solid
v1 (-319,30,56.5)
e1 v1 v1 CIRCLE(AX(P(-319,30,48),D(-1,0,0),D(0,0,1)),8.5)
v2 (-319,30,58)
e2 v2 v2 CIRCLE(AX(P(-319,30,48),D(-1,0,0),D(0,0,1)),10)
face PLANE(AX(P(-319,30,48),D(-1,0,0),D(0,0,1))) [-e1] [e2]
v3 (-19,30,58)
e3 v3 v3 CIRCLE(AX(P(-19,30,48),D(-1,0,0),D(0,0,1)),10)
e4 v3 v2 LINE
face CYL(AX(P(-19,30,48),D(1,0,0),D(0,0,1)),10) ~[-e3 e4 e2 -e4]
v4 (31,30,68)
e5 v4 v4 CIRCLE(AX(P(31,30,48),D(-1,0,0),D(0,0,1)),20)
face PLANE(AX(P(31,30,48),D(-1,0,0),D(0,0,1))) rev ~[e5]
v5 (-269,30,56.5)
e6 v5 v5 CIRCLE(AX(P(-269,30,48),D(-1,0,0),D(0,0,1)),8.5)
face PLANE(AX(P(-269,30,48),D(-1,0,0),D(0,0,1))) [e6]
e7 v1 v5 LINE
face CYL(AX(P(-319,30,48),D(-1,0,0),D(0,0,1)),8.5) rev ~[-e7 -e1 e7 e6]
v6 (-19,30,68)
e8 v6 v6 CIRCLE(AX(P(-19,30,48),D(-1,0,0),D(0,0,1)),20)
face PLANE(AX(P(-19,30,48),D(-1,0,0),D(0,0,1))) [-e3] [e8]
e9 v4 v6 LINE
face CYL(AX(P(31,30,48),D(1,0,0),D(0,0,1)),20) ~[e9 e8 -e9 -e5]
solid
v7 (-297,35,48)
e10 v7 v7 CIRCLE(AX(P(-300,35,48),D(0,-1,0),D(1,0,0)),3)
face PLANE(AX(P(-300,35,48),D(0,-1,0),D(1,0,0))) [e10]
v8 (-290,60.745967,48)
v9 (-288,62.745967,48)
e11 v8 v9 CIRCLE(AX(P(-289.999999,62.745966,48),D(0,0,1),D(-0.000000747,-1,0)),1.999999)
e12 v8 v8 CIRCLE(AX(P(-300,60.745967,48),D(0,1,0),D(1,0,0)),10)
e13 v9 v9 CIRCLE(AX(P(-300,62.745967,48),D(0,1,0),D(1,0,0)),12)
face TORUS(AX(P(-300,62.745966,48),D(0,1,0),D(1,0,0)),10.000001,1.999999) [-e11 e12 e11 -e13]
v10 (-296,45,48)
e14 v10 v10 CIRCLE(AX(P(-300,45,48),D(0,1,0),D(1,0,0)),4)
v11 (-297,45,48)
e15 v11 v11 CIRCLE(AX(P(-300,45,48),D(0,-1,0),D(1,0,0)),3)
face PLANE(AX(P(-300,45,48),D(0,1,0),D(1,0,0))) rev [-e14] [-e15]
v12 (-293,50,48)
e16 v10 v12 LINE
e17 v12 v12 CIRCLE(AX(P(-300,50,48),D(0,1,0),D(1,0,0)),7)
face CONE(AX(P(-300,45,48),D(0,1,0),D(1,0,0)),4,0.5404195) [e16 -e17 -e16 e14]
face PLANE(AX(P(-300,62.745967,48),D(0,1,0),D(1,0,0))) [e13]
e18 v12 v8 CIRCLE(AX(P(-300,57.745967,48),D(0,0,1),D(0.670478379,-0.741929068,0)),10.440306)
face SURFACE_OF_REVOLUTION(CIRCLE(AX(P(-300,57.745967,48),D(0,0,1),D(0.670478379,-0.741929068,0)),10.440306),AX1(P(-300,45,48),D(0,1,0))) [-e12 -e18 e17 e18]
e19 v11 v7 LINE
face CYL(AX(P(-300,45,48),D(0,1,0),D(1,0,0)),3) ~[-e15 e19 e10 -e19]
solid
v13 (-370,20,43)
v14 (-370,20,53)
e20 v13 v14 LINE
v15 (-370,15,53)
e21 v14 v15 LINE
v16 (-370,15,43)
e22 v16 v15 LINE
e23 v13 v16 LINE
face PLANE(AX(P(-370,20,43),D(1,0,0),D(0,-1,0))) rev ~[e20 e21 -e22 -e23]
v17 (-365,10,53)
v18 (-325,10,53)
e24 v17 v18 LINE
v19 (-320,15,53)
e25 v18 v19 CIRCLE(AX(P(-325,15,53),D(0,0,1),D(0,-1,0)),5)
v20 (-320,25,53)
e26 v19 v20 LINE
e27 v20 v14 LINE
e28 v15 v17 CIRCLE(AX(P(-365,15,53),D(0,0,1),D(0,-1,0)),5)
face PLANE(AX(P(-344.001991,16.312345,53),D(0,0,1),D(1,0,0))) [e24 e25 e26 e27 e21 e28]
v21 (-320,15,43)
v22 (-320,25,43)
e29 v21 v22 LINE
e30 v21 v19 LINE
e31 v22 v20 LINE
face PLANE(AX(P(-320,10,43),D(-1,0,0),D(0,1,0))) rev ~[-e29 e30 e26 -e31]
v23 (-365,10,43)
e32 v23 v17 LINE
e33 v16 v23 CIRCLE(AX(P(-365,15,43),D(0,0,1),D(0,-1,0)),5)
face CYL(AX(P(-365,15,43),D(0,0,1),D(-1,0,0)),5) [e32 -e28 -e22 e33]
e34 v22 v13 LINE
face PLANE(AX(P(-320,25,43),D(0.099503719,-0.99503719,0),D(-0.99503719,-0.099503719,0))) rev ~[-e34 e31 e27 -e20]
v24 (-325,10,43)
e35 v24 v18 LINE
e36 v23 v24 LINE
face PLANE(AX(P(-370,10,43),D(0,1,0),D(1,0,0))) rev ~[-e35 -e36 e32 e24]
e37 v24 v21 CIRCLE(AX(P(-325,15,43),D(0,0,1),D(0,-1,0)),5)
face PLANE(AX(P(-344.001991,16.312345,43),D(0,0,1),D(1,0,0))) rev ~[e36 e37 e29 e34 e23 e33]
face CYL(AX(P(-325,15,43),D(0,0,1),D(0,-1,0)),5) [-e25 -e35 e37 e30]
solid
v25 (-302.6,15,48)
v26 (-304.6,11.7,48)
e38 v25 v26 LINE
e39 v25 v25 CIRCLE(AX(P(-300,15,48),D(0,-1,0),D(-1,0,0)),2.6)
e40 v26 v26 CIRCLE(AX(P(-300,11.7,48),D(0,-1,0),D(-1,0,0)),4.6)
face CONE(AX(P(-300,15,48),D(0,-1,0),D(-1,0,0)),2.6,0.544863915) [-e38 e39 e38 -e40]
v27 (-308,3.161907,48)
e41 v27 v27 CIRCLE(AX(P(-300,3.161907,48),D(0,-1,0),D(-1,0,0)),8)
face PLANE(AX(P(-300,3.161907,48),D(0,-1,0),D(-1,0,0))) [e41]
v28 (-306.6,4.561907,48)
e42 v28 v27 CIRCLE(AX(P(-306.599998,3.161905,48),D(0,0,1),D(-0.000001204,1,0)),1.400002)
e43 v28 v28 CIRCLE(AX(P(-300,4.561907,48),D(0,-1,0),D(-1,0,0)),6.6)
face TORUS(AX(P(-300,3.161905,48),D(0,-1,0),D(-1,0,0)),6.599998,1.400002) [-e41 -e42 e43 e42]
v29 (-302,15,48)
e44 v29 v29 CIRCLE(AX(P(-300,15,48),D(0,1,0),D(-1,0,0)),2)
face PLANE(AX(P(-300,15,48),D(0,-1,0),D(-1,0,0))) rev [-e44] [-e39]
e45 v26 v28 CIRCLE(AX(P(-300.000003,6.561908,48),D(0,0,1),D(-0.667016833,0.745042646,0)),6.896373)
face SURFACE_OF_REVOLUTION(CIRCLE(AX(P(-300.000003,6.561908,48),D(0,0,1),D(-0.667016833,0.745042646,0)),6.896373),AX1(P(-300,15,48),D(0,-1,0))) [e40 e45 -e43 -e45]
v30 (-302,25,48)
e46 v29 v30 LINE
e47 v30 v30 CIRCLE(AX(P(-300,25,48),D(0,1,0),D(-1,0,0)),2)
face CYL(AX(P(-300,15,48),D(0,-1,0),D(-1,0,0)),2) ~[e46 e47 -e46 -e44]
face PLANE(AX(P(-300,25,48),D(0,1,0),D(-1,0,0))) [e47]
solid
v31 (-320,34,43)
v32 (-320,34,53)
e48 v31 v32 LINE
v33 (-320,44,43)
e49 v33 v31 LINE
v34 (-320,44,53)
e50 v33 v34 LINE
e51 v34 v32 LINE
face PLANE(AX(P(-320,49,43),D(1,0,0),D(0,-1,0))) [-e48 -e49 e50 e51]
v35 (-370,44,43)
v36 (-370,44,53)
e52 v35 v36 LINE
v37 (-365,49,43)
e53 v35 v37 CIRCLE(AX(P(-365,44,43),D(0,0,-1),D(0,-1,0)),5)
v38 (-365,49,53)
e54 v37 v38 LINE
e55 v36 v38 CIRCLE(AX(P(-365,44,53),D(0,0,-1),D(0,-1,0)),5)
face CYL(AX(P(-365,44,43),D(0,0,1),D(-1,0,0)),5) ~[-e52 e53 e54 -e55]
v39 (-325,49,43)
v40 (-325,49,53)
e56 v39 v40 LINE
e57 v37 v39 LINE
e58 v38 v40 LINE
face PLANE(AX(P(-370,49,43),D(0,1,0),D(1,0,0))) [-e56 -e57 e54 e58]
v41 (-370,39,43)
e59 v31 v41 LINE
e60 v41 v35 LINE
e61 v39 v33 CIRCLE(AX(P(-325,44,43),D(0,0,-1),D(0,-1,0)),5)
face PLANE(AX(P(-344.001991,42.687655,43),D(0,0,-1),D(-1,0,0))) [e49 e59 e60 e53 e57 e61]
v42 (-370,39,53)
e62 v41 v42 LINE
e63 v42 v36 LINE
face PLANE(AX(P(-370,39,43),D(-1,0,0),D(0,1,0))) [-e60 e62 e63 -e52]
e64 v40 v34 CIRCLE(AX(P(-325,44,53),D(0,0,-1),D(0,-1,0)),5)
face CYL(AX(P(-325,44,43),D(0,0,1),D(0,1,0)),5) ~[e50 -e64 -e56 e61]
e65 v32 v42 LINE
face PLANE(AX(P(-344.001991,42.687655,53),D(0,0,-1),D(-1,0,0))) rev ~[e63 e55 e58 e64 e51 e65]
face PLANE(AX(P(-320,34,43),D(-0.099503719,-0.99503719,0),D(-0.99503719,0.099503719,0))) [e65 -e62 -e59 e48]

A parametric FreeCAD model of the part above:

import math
import FreeCAD as App
import Part
import Sketcher

V = App.Vector


def edges_at(feature, points):
    """Names of the edges that pass closest to the given points."""
    edges = feature.Shape.Edges
    near = lambda p: min(range(len(edges)), key=lambda i: edges[i].distToShape(Part.Vertex(*p))[0])
    return sorted({f"Edge{near(p) + 1}" for p in points})

doc = App.newDocument("Part")
params = doc.addObject("Spreadsheet::Sheet", "Params")
for row, (alias, value) in enumerate([
    ("sketch1_radius", "1.999999 mm"),
    ("sketch1_width", "4 mm"),
    ("sketch1_width2", "12 mm"),
    ("revolution_angle", "360 deg"),
    ("sketch2_diameter", "6 mm"),
    ("pad1_length", "10 mm"),
    ("sketch3_radius", "1.400002 mm"),
    ("sketch3_width", "8 mm"),
    ("sketch3_width2", "2.6 mm"),
    ("sketch3_height", "2.000001 mm"),
    ("revolution2_angle", "360 deg"),
    ("sketch4_diameter", "4 mm"),
    ("pad2_length", "10 mm"),
    ("sketch5_width", "50 mm"),
    ("sketch5_height", "10 mm"),
    ("sketch5_height2", "15 mm"),
    ("pad3_length", "10 mm"),
    ("fillet_radius", "5 mm"),
    ("fillet2_radius", "5 mm"),
    ("sketch6_width", "50 mm"),
    ("sketch6_height", "10 mm"),
    ("sketch6_height2", "15 mm"),
    ("pad4_length", "10 mm"),
    ("fillet3_radius", "5 mm"),
    ("fillet4_radius", "5 mm"),
    ("sketch7_diameter", "40 mm"),
    ("pad5_length", "50 mm"),
    ("sketch8_diameter", "20 mm"),
    ("pad6_length", "300 mm"),
    ("sketch9_diameter", "17 mm"),
    ("pocket1_length", "50 mm"),
], start=1):
    params.set(f"A{row}", alias)
    params.set(f"B{row}", "=" + value)
    params.setAlias(f"B{row}", alias)

body = doc.addObject("PartDesign::Body", "Body")

sketch1 = doc.addObject("Sketcher::SketchObject", "Sketch")
body.addObject(sketch1)
sketch1.AttachmentSupport = (doc.XY_Plane, [""])
sketch1.MapMode = "FlatFace"
sketch1.AttachmentOffset = App.Placement(V(0, 0, 48), App.Rotation())
sketch1.addGeometry(Part.LineSegment(V(-300, 45, 0), V(-296, 45, 0)), False)
sketch1.addGeometry(Part.LineSegment(V(-296, 45, 0), V(-293, 50, 0)), False)
sketch1.addGeometry(Part.ArcOfCircle(Part.Circle(V(-300, 57.7, 0), V(0, 0, 1), 10.4), math.radians(-48), math.radians(17)), False)
sketch1.addGeometry(Part.ArcOfCircle(Part.Circle(V(-290, 62.7, 0), V(0, 0, 1), 2), math.radians(-90), math.radians(0)), False)
sketch1.addGeometry(Part.LineSegment(V(-288, 62.7, 0), V(-300, 62.7, 0)), False)
sketch1.addGeometry(Part.LineSegment(V(-300, 62.7, 0), V(-300, 45, 0)), False)
sketch1.addGeometry(Part.LineSegment(V(-300, 45, 0), V(-300, 62.7, 0)), True)
sketch1.addConstraint(Sketcher.Constraint("Coincident", 0, 2, 1, 1))
sketch1.addConstraint(Sketcher.Constraint("Coincident", 1, 2, 2, 1))
sketch1.addConstraint(Sketcher.Constraint("Coincident", 2, 2, 3, 1))
sketch1.addConstraint(Sketcher.Constraint("Coincident", 3, 2, 4, 1))
sketch1.addConstraint(Sketcher.Constraint("Coincident", 4, 2, 5, 1))
sketch1.addConstraint(Sketcher.Constraint("Coincident", 5, 2, 0, 1))
sketch1.addConstraint(Sketcher.Constraint("Horizontal", 0))
sketch1.addConstraint(Sketcher.Constraint("Horizontal", 4))
sketch1.addConstraint(Sketcher.Constraint("Vertical", 5))
sketch1.addConstraint(Sketcher.Constraint("Vertical", 6))
sketch1.addConstraint(Sketcher.Constraint("Coincident", 6, 1, 5, 2))
sketch1.addConstraint(Sketcher.Constraint("Horizontal", 3, 2, 6, 2))
sketch1.addConstraint(Sketcher.Constraint("Vertical", 3, 3, 2, 2))
sketch1.addConstraint(Sketcher.Constraint("Vertical", 2, 3, 4, 2))
sketch1.addConstraint(Sketcher.Constraint("Radius", 3, 1.999999))
sketch1.addConstraint(Sketcher.Constraint("DistanceX", 0, 1, 0, 2, 4.0))
sketch1.addConstraint(Sketcher.Constraint("DistanceX", 4, 2, 4, 1, 12.0))
sketch1.addConstraint(Sketcher.Constraint("DistanceX", 2, 3, -1, 1, 300.0))
sketch1.addConstraint(Sketcher.Constraint("DistanceY", -1, 1, 0, 2, 45.0))
sketch1.addConstraint(Sketcher.Constraint("DistanceX", 1, 2, -1, 1, 293.0))
sketch1.addConstraint(Sketcher.Constraint("DistanceY", -1, 1, 1, 2, 50.0))
sketch1.addConstraint(Sketcher.Constraint("DistanceY", 2, 3, 3, 3, 4.999999))
sketch1.addConstraint(Sketcher.Constraint("DistanceY", 2, 2, 3, 2, 2.0))
sketch1.setExpression("Constraints[14]", "Params.sketch1_radius")
sketch1.setExpression("Constraints[15]", "Params.sketch1_width")
sketch1.setExpression("Constraints[16]", "Params.sketch1_width2")
revolution = doc.addObject("PartDesign::Revolution", "Revolution")
body.addObject(revolution)
revolution.Profile = sketch1
revolution.ReferenceAxis = (sketch1, ["Axis0"])
revolution.setExpression("Angle", "Params.revolution_angle")

sketch2 = doc.addObject("Sketcher::SketchObject", "Sketch001")
body.addObject(sketch2)
sketch2.AttachmentSupport = (doc.XZ_Plane, [""])
sketch2.MapMode = "FlatFace"
sketch2.AttachmentOffset = App.Placement(V(0, 0, -45), App.Rotation())
sketch2.addGeometry(Part.Circle(V(-300, 48, 0), V(0, 0, 1), 3), False)
sketch2.addConstraint(Sketcher.Constraint("Diameter", 0, 6.0))
sketch2.addConstraint(Sketcher.Constraint("DistanceX", 0, 3, -1, 1, 300.0))
sketch2.addConstraint(Sketcher.Constraint("DistanceY", -1, 1, 0, 3, 48.0))
sketch2.setExpression("Constraints[0]", "Params.sketch2_diameter")
pad1 = doc.addObject("PartDesign::Pad", "Pad")
body.addObject(pad1)
pad1.Profile = sketch2
pad1.setExpression("Length", "Params.pad1_length")
body2 = doc.addObject("PartDesign::Body", "Body001")

sketch3 = doc.addObject("Sketcher::SketchObject", "Sketch002")
body2.addObject(sketch3)
sketch3.AttachmentSupport = (doc.getObject("XY_Plane001"), [""])
sketch3.MapMode = "FlatFace"
sketch3.AttachmentOffset = App.Placement(V(0, 0, 48), App.Rotation())
sketch3.addGeometry(Part.LineSegment(V(-300, 15, 0), V(-302.6, 15, 0)), False)
sketch3.addGeometry(Part.LineSegment(V(-302.6, 15, 0), V(-304.6, 11.7, 0)), False)
sketch3.addGeometry(Part.ArcOfCircle(Part.Circle(V(-300, 6.6, 0), V(0, 0, 1), 6.9), math.radians(132), math.radians(197)), False)
sketch3.addGeometry(Part.ArcOfCircle(Part.Circle(V(-306.6, 3.2, 0), V(0, 0, 1), 1.4), math.radians(90), math.radians(180)), False)
sketch3.addGeometry(Part.LineSegment(V(-308, 3.2, 0), V(-300, 3.2, 0)), False)
sketch3.addGeometry(Part.LineSegment(V(-300, 3.2, 0), V(-300, 15, 0)), False)
sketch3.addGeometry(Part.LineSegment(V(-300, 15, 0), V(-300, 3.2, 0)), True)
sketch3.addConstraint(Sketcher.Constraint("Coincident", 0, 2, 1, 1))
sketch3.addConstraint(Sketcher.Constraint("Coincident", 1, 2, 2, 1))
sketch3.addConstraint(Sketcher.Constraint("Coincident", 2, 2, 3, 1))
sketch3.addConstraint(Sketcher.Constraint("Coincident", 3, 2, 4, 1))
sketch3.addConstraint(Sketcher.Constraint("Coincident", 4, 2, 5, 1))
sketch3.addConstraint(Sketcher.Constraint("Coincident", 5, 2, 0, 1))
sketch3.addConstraint(Sketcher.Constraint("Horizontal", 0))
sketch3.addConstraint(Sketcher.Constraint("Horizontal", 4))
sketch3.addConstraint(Sketcher.Constraint("Vertical", 5))
sketch3.addConstraint(Sketcher.Constraint("Vertical", 6))
sketch3.addConstraint(Sketcher.Constraint("Coincident", 6, 1, 5, 2))
sketch3.addConstraint(Sketcher.Constraint("Horizontal", 3, 2, 6, 2))
sketch3.addConstraint(Sketcher.Constraint("Vertical", 3, 3, 2, 2))
sketch3.addConstraint(Sketcher.Constraint("Radius", 3, 1.400002))
sketch3.addConstraint(Sketcher.Constraint("DistanceX", 4, 1, 4, 2, 8.0))
sketch3.addConstraint(Sketcher.Constraint("DistanceX", 0, 2, 0, 1, 2.6))
sketch3.addConstraint(Sketcher.Constraint("DistanceY", -1, 1, 0, 2, 15.0))
sketch3.addConstraint(Sketcher.Constraint("DistanceX", 3, 2, -1, 1, 308.0))
sketch3.addConstraint(Sketcher.Constraint("DistanceX", 1, 2, 0, 2, 2.0))
sketch3.addConstraint(Sketcher.Constraint("DistanceY", 2, 2, 2, 3, 2.000001))
sketch3.addConstraint(Sketcher.Constraint("DistanceY", -1, 1, 1, 2, 11.7))
sketch3.addConstraint(Sketcher.Constraint("DistanceY", 3, 2, 2, 2, 1.4))
sketch3.addConstraint(Sketcher.Constraint("Radius", 2, 6.896373))
sketch3.setExpression("Constraints[13]", "Params.sketch3_radius")
sketch3.setExpression("Constraints[14]", "Params.sketch3_width")
sketch3.setExpression("Constraints[15]", "Params.sketch3_width2")
sketch3.setExpression("Constraints[19]", "Params.sketch3_height")
revolution2 = doc.addObject("PartDesign::Revolution", "Revolution001")
body2.addObject(revolution2)
revolution2.Profile = sketch3
revolution2.ReferenceAxis = (sketch3, ["Axis0"])
revolution2.setExpression("Angle", "Params.revolution2_angle")

sketch4 = doc.addObject("Sketcher::SketchObject", "Sketch003")
body2.addObject(sketch4)
sketch4.AttachmentSupport = (doc.getObject("XZ_Plane001"), [""])
sketch4.MapMode = "FlatFace"
sketch4.AttachmentOffset = App.Placement(V(0, 0, -15), App.Rotation())
sketch4.addGeometry(Part.Circle(V(-300, 48, 0), V(0, 0, 1), 2), False)
sketch4.addConstraint(Sketcher.Constraint("Diameter", 0, 4.0))
sketch4.addConstraint(Sketcher.Constraint("DistanceX", 0, 3, -1, 1, 300.0))
sketch4.addConstraint(Sketcher.Constraint("DistanceY", -1, 1, 0, 3, 48.0))
sketch4.setExpression("Constraints[0]", "Params.sketch4_diameter")
pad2 = doc.addObject("PartDesign::Pad", "Pad001")
body2.addObject(pad2)
pad2.Profile = sketch4
pad2.setExpression("Length", "Params.pad2_length")
pad2.Reversed = True
body3 = doc.addObject("PartDesign::Body", "Body002")

sketch5 = doc.addObject("Sketcher::SketchObject", "Sketch004")
body3.addObject(sketch5)
sketch5.AttachmentSupport = (doc.getObject("XY_Plane002"), [""])
sketch5.MapMode = "FlatFace"
sketch5.AttachmentOffset = App.Placement(V(0, 0, 43), App.Rotation())
sketch5.addGeometry(Part.LineSegment(V(-370, 20, 0), V(-370, 10, 0)), False)
sketch5.addGeometry(Part.LineSegment(V(-370, 10, 0), V(-320, 10, 0)), False)
sketch5.addGeometry(Part.LineSegment(V(-320, 10, 0), V(-320, 25, 0)), False)
sketch5.addGeometry(Part.LineSegment(V(-320, 25, 0), V(-370, 20, 0)), False)
sketch5.addConstraint(Sketcher.Constraint("Coincident", 0, 2, 1, 1))
sketch5.addConstraint(Sketcher.Constraint("Coincident", 1, 2, 2, 1))
sketch5.addConstraint(Sketcher.Constraint("Coincident", 2, 2, 3, 1))
sketch5.addConstraint(Sketcher.Constraint("Coincident", 3, 2, 0, 1))
sketch5.addConstraint(Sketcher.Constraint("Vertical", 0))
sketch5.addConstraint(Sketcher.Constraint("Horizontal", 1))
sketch5.addConstraint(Sketcher.Constraint("Vertical", 2))
sketch5.addConstraint(Sketcher.Constraint("DistanceX", 1, 1, 1, 2, 50.0))
sketch5.addConstraint(Sketcher.Constraint("DistanceY", 0, 2, 0, 1, 10.0))
sketch5.addConstraint(Sketcher.Constraint("DistanceY", 2, 1, 2, 2, 15.0))
sketch5.addConstraint(Sketcher.Constraint("DistanceX", 0, 2, -1, 1, 370.0))
sketch5.addConstraint(Sketcher.Constraint("DistanceY", -1, 1, 0, 2, 10.0))
sketch5.setExpression("Constraints[7]", "Params.sketch5_width")
sketch5.setExpression("Constraints[8]", "Params.sketch5_height")
sketch5.setExpression("Constraints[9]", "Params.sketch5_height2")
pad3 = doc.addObject("PartDesign::Pad", "Pad002")
body3.addObject(pad3)
pad3.Profile = sketch5
pad3.setExpression("Length", "Params.pad3_length")
doc.recompute()

fillet = doc.addObject("PartDesign::Fillet", "Fillet")
body3.addObject(fillet)
fillet.Base = (pad3, edges_at(pad3, [(-370, 10, 48)]))
fillet.setExpression("Radius", "Params.fillet_radius")
doc.recompute()

fillet2 = doc.addObject("PartDesign::Fillet", "Fillet001")
body3.addObject(fillet2)
fillet2.Base = (fillet, edges_at(fillet, [(-320, 10, 48)]))
fillet2.setExpression("Radius", "Params.fillet2_radius")
body4 = doc.addObject("PartDesign::Body", "Body003")

sketch6 = doc.addObject("Sketcher::SketchObject", "Sketch005")
body4.addObject(sketch6)
sketch6.AttachmentSupport = (doc.getObject("XY_Plane003"), [""])
sketch6.MapMode = "FlatFace"
sketch6.AttachmentOffset = App.Placement(V(0, 0, 43), App.Rotation())
sketch6.addGeometry(Part.LineSegment(V(-370, 49, 0), V(-370, 39, 0)), False)
sketch6.addGeometry(Part.LineSegment(V(-370, 39, 0), V(-320, 34, 0)), False)
sketch6.addGeometry(Part.LineSegment(V(-320, 34, 0), V(-320, 49, 0)), False)
sketch6.addGeometry(Part.LineSegment(V(-320, 49, 0), V(-370, 49, 0)), False)
sketch6.addConstraint(Sketcher.Constraint("Coincident", 0, 2, 1, 1))
sketch6.addConstraint(Sketcher.Constraint("Coincident", 1, 2, 2, 1))
sketch6.addConstraint(Sketcher.Constraint("Coincident", 2, 2, 3, 1))
sketch6.addConstraint(Sketcher.Constraint("Coincident", 3, 2, 0, 1))
sketch6.addConstraint(Sketcher.Constraint("Vertical", 0))
sketch6.addConstraint(Sketcher.Constraint("Vertical", 2))
sketch6.addConstraint(Sketcher.Constraint("Horizontal", 3))
sketch6.addConstraint(Sketcher.Constraint("DistanceX", 3, 2, 3, 1, 50.0))
sketch6.addConstraint(Sketcher.Constraint("DistanceY", 0, 2, 0, 1, 10.0))
sketch6.addConstraint(Sketcher.Constraint("DistanceY", 2, 1, 2, 2, 15.0))
sketch6.addConstraint(Sketcher.Constraint("DistanceX", 0, 2, -1, 1, 370.0))
sketch6.addConstraint(Sketcher.Constraint("DistanceY", -1, 1, 0, 2, 39.0))
sketch6.setExpression("Constraints[7]", "Params.sketch6_width")
sketch6.setExpression("Constraints[8]", "Params.sketch6_height")
sketch6.setExpression("Constraints[9]", "Params.sketch6_height2")
pad4 = doc.addObject("PartDesign::Pad", "Pad003")
body4.addObject(pad4)
pad4.Profile = sketch6
pad4.setExpression("Length", "Params.pad4_length")
doc.recompute()

fillet3 = doc.addObject("PartDesign::Fillet", "Fillet002")
body4.addObject(fillet3)
fillet3.Base = (pad4, edges_at(pad4, [(-370, 49, 48)]))
fillet3.setExpression("Radius", "Params.fillet3_radius")
doc.recompute()

fillet4 = doc.addObject("PartDesign::Fillet", "Fillet003")
body4.addObject(fillet4)
fillet4.Base = (fillet3, edges_at(fillet3, [(-320, 49, 48)]))
fillet4.setExpression("Radius", "Params.fillet4_radius")
body5 = doc.addObject("PartDesign::Body", "Body004")

sketch7 = doc.addObject("Sketcher::SketchObject", "Sketch006")
body5.addObject(sketch7)
sketch7.AttachmentSupport = (doc.getObject("YZ_Plane004"), [""])
sketch7.MapMode = "FlatFace"
sketch7.AttachmentOffset = App.Placement(V(0, 0, 31), App.Rotation())
sketch7.addGeometry(Part.Circle(V(30, 48, 0), V(0, 0, 1), 20), False)
sketch7.addConstraint(Sketcher.Constraint("Diameter", 0, 40.0))
sketch7.addConstraint(Sketcher.Constraint("DistanceX", -1, 1, 0, 3, 30.0))
sketch7.addConstraint(Sketcher.Constraint("DistanceY", -1, 1, 0, 3, 48.0))
sketch7.setExpression("Constraints[0]", "Params.sketch7_diameter")
pad5 = doc.addObject("PartDesign::Pad", "Pad004")
body5.addObject(pad5)
pad5.Profile = sketch7
pad5.setExpression("Length", "Params.pad5_length")
pad5.Reversed = True

sketch8 = doc.addObject("Sketcher::SketchObject", "Sketch007")
body5.addObject(sketch8)
sketch8.AttachmentSupport = (doc.getObject("YZ_Plane004"), [""])
sketch8.MapMode = "FlatFace"
sketch8.AttachmentOffset = App.Placement(V(0, 0, -19), App.Rotation())
sketch8.addGeometry(Part.Circle(V(30, 48, 0), V(0, 0, 1), 10), False)
sketch8.addConstraint(Sketcher.Constraint("Diameter", 0, 20.0))
sketch8.addConstraint(Sketcher.Constraint("DistanceX", -1, 1, 0, 3, 30.0))
sketch8.addConstraint(Sketcher.Constraint("DistanceY", -1, 1, 0, 3, 48.0))
sketch8.setExpression("Constraints[0]", "Params.sketch8_diameter")
pad6 = doc.addObject("PartDesign::Pad", "Pad005")
body5.addObject(pad6)
pad6.Profile = sketch8
pad6.setExpression("Length", "Params.pad6_length")
pad6.Reversed = True

sketch9 = doc.addObject("Sketcher::SketchObject", "Sketch008")
body5.addObject(sketch9)
sketch9.AttachmentSupport = (doc.getObject("YZ_Plane004"), [""])
sketch9.MapMode = "FlatFace"
sketch9.AttachmentOffset = App.Placement(V(0, 0, -319), App.Rotation())
sketch9.addGeometry(Part.Circle(V(30, 48, 0), V(0, 0, 1), 8), False)
sketch9.addConstraint(Sketcher.Constraint("Diameter", 0, 17.0))
sketch9.addConstraint(Sketcher.Constraint("DistanceX", -1, 1, 0, 3, 30.0))
sketch9.addConstraint(Sketcher.Constraint("DistanceY", -1, 1, 0, 3, 48.0))
sketch9.setExpression("Constraints[0]", "Params.sketch9_diameter")
pocket1 = doc.addObject("PartDesign::Pocket", "Pocket")
body5.addObject(pocket1)
pocket1.Profile = sketch9
pocket1.setExpression("Length", "Params.pocket1_length")
pocket1.Reversed = True

doc.recompute()
